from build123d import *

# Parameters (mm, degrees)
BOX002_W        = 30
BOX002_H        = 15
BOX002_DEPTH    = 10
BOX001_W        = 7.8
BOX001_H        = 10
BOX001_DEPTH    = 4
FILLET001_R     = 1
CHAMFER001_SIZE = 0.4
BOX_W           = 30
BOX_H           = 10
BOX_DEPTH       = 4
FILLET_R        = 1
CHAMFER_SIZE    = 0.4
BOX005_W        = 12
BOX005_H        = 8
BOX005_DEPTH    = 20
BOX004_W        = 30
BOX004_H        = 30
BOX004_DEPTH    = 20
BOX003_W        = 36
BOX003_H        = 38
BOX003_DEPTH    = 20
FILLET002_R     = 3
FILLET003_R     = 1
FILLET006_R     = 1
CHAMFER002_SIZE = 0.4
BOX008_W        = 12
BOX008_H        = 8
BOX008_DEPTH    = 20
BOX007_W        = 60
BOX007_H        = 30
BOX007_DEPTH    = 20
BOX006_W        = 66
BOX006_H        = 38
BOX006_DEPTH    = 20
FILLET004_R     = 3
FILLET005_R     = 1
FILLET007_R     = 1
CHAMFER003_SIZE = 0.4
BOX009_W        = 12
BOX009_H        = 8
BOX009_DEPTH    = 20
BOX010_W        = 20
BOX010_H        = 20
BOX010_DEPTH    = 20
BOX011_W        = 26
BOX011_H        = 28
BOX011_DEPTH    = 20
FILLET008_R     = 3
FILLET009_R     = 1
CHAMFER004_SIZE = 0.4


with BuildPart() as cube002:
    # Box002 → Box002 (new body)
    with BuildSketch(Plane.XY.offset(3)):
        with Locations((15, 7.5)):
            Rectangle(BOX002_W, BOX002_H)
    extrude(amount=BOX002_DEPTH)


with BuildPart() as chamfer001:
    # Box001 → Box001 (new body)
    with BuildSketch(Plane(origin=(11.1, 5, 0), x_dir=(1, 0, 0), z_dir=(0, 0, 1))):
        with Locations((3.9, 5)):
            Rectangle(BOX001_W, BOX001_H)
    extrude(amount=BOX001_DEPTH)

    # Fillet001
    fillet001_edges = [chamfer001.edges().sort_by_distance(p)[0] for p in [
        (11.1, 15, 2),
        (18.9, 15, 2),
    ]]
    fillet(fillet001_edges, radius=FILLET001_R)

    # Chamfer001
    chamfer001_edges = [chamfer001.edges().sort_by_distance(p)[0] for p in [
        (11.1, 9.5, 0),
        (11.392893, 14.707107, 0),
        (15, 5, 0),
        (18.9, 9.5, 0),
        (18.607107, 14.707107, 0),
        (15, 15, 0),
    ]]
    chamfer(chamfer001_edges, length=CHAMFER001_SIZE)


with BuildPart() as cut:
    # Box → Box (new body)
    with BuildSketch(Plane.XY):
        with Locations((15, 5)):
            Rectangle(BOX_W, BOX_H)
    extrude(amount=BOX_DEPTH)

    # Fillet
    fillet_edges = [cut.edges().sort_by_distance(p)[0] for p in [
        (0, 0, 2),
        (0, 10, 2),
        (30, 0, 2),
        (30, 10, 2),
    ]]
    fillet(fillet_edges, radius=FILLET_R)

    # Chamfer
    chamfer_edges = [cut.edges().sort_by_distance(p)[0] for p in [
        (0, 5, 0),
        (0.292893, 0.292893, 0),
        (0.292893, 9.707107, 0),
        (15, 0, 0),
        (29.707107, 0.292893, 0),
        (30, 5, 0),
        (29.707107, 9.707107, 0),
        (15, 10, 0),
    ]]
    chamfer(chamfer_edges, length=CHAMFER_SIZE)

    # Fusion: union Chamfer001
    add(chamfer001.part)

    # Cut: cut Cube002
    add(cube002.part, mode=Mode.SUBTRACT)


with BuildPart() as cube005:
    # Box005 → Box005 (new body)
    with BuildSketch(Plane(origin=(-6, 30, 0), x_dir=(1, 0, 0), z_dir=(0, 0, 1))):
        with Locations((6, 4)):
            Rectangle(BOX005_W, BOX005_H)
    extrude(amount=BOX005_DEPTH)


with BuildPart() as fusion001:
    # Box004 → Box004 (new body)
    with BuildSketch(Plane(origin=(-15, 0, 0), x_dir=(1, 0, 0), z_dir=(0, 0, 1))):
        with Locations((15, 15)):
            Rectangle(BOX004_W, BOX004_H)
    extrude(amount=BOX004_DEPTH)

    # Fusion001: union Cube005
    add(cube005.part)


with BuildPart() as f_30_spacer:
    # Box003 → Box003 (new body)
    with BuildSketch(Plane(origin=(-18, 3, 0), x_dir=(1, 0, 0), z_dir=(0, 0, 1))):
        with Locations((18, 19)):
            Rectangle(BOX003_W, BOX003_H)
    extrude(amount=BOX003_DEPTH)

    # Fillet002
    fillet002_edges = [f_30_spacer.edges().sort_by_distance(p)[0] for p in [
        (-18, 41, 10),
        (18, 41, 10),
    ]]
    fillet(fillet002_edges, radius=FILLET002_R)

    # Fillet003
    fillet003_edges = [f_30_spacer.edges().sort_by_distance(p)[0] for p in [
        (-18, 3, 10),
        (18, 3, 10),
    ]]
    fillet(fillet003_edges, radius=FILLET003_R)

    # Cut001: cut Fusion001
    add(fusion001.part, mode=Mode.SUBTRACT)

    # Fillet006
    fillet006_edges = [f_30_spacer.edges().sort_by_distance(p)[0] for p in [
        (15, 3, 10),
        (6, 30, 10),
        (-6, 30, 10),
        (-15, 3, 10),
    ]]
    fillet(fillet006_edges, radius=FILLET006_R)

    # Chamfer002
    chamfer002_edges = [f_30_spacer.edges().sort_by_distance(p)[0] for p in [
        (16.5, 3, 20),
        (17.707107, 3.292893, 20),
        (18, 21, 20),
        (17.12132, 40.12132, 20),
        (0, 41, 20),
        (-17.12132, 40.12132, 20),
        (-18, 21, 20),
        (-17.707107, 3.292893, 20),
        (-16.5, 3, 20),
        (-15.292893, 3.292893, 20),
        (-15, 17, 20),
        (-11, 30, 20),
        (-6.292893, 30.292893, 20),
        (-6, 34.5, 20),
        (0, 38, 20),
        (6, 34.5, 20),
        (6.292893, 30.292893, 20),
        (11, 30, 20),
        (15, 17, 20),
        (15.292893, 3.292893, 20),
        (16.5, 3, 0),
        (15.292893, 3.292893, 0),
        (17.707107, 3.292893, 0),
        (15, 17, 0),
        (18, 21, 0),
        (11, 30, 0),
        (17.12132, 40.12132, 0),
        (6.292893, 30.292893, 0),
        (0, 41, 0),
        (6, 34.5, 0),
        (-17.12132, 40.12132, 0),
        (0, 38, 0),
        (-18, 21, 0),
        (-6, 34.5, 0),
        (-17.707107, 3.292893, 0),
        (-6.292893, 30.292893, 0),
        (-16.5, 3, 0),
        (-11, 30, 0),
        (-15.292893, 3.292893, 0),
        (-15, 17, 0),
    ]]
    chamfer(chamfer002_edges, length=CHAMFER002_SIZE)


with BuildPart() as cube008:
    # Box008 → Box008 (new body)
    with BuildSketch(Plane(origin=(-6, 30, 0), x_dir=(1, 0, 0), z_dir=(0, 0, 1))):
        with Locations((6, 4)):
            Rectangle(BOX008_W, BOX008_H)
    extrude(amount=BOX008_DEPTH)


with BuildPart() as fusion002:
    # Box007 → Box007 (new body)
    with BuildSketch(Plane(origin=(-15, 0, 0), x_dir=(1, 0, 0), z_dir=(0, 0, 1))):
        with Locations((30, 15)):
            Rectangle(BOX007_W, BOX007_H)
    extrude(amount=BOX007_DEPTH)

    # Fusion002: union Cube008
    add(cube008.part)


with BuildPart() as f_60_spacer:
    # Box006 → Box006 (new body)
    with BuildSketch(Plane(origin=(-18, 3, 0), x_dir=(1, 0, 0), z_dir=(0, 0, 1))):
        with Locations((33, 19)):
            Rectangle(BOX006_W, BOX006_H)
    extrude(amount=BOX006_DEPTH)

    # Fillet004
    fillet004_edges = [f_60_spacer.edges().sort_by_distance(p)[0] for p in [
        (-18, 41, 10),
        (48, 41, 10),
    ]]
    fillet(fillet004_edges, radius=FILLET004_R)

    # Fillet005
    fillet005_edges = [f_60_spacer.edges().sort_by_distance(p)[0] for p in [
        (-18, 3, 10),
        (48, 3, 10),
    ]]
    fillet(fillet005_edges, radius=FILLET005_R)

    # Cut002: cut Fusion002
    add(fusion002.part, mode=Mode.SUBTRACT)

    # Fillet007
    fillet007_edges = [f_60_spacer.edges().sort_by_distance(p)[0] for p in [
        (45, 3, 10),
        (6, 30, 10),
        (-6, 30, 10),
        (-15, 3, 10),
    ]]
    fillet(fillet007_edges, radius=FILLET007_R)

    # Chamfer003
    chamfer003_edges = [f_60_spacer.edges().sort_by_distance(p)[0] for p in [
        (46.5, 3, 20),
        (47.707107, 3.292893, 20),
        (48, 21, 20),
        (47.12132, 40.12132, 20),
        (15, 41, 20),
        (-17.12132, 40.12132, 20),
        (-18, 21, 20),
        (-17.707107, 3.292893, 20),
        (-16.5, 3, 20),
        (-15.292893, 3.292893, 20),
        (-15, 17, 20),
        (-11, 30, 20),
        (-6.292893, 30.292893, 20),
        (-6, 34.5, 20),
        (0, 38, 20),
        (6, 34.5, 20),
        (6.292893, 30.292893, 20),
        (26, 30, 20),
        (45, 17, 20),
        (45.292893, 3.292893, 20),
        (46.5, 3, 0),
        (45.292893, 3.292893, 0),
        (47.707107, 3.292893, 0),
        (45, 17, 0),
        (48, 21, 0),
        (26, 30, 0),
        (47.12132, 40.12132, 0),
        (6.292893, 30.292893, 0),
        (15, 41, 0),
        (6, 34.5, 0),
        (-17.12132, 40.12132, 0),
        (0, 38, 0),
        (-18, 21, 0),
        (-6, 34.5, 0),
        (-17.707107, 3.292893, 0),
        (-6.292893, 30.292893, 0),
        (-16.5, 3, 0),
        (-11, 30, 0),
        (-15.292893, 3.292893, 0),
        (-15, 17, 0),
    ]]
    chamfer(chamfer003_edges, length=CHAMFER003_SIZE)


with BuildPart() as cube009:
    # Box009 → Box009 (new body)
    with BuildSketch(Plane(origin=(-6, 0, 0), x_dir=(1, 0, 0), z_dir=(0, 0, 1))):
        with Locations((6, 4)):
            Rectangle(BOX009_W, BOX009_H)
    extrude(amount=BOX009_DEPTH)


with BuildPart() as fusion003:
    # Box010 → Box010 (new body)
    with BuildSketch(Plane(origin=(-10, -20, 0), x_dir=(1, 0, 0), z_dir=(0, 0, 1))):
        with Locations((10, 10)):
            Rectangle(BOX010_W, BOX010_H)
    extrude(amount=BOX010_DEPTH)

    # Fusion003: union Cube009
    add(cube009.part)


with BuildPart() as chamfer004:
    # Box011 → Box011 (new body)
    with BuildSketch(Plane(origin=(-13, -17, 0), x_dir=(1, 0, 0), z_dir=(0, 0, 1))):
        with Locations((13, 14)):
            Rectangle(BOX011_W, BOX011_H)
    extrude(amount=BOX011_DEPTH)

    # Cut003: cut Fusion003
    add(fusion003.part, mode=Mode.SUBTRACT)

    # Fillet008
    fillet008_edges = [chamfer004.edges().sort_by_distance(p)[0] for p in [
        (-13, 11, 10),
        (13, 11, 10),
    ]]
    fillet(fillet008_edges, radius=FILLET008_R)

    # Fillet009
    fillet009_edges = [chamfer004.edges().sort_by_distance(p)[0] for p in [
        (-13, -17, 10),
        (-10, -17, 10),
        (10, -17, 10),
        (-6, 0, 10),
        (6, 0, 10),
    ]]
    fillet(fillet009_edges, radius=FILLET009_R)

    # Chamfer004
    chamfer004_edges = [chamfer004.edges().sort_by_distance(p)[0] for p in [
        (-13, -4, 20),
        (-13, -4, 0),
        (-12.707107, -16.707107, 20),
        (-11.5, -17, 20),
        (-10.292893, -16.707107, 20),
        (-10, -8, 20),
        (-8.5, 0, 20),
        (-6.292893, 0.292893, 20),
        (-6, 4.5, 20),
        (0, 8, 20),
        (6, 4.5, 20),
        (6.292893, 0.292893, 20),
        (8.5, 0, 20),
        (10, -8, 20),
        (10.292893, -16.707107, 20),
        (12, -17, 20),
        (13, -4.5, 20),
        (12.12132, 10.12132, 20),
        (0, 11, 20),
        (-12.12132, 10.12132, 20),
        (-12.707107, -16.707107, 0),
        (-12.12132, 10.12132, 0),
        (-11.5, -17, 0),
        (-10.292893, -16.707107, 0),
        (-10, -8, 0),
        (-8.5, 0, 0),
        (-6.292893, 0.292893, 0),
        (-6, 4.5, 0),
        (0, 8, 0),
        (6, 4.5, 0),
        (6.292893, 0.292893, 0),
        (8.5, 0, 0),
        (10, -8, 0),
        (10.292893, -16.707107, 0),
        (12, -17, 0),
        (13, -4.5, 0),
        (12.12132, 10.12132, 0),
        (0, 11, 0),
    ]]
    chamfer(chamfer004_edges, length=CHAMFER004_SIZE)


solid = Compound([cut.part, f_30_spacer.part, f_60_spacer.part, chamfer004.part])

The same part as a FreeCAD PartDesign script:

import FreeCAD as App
import Part
import Sketcher


def edges_at(feature, points):
    """Names of the edges that pass closest to the given points."""
    edges = feature.Shape.Edges
    near = lambda p: min(range(len(edges)), key=lambda i: edges[i].distToShape(Part.Vertex(*p))[0])
    return sorted({f"Edge{near(p) + 1}" for p in points})

doc = App.newDocument("Part")
body = doc.addObject("PartDesign::Body", "Body")

sketch1 = body.newObject("Sketcher::SketchObject", "Sketch")
sketch1.AttachmentSupport = (doc.getObject("XY_Plane"), [""])
sketch1.MapMode = "FlatFace"
sketch1.AttachmentOffset = App.Placement(App.Vector(0, 0, 3), App.Rotation())
sketch1.addGeometry([
    Part.LineSegment(App.Vector(0, 15, 0), App.Vector(0, 0, 0)),
    Part.LineSegment(App.Vector(0, 0, 0), App.Vector(30, 0, 0)),
    Part.LineSegment(App.Vector(30, 0, 0), App.Vector(30, 15, 0)),
    Part.LineSegment(App.Vector(30, 15, 0), App.Vector(0, 15, 0)),
], False)
sketch1.addConstraint([
    Sketcher.Constraint("Coincident", 0, 2, 1, 1),
    Sketcher.Constraint("Coincident", 1, 2, 2, 1),
    Sketcher.Constraint("Coincident", 2, 2, 3, 1),
    Sketcher.Constraint("Coincident", 3, 2, 0, 1),
    Sketcher.Constraint("Vertical", 0),
    Sketcher.Constraint("Horizontal", 1),
    Sketcher.Constraint("Vertical", 2),
    Sketcher.Constraint("Horizontal", 3),
    Sketcher.Constraint("Coincident", 0, 2, -1, 1),
    Sketcher.Constraint("DistanceX", 1, 1, 1, 2, 30.0),
    Sketcher.Constraint("DistanceY", 0, 2, 0, 1, 15.0),
])
pad1 = body.newObject("PartDesign::Pad", "Pad")
pad1.Profile = sketch1
pad1.Length = 10
body2 = doc.addObject("PartDesign::Body", "Body001")

sketch2 = body2.newObject("Sketcher::SketchObject", "Sketch001")
sketch2.AttachmentSupport = (doc.getObject("XY_Plane001"), [""])
sketch2.MapMode = "FlatFace"
sketch2.addGeometry([
    Part.LineSegment(App.Vector(11, 15, 0), App.Vector(11, 5, 0)),
    Part.LineSegment(App.Vector(11, 5, 0), App.Vector(19, 5, 0)),
    Part.LineSegment(App.Vector(19, 5, 0), App.Vector(19, 15, 0)),
    Part.LineSegment(App.Vector(19, 15, 0), App.Vector(11, 15, 0)),
], False)
sketch2.addConstraint([
    Sketcher.Constraint("Coincident", 0, 2, 1, 1),
    Sketcher.Constraint("Coincident", 1, 2, 2, 1),
    Sketcher.Constraint("Coincident", 2, 2, 3, 1),
    Sketcher.Constraint("Coincident", 3, 2, 0, 1),
    Sketcher.Constraint("Vertical", 0),
    Sketcher.Constraint("Horizontal", 1),
    Sketcher.Constraint("Vertical", 2),
    Sketcher.Constraint("Horizontal", 3),
    Sketcher.Constraint("DistanceY", 0, 2, 0, 1, 10.0),
    Sketcher.Constraint("DistanceX", 1, 1, 1, 2, 7.8),
    Sketcher.Constraint("DistanceY", -1, 1, 0, 2, 5.0),
    Sketcher.Constraint("DistanceX", -1, 1, 0, 2, 11.1),
])
pad2 = body2.newObject("PartDesign::Pad", "Pad001")
pad2.Profile = sketch2
pad2.Length = 4
doc.recompute()

fillet = body2.newObject("PartDesign::Fillet", "Fillet")
fillet.Base = (pad2, edges_at(pad2, [(11.1, 15, 2), (18.9, 15, 2)]))
fillet.Radius = 1
doc.recompute()

chamfer = body2.newObject("PartDesign::Chamfer", "Chamfer")
chamfer.Base = (fillet, edges_at(fillet, [
    (11.1, 9.5, 0),
    (11.393, 14.707, 0),
    (15, 5, 0),
    (18.9, 9.5, 0),
    (18.607, 14.707, 0),
    (15, 15, 0),
]))
chamfer.Size = 0.4
body3 = doc.addObject("PartDesign::Body", "Body002")

sketch3 = body3.newObject("Sketcher::SketchObject", "Sketch002")
sketch3.AttachmentSupport = (doc.getObject("XY_Plane002"), [""])
sketch3.MapMode = "FlatFace"
sketch3.addGeometry([
    Part.LineSegment(App.Vector(0, 10, 0), App.Vector(0, 0, 0)),
    Part.LineSegment(App.Vector(0, 0, 0), App.Vector(30, 0, 0)),
    Part.LineSegment(App.Vector(30, 0, 0), App.Vector(30, 10, 0)),
    Part.LineSegment(App.Vector(30, 10, 0), App.Vector(0, 10, 0)),
], False)
sketch3.addConstraint([
    Sketcher.Constraint("Coincident", 0, 2, 1, 1),
    Sketcher.Constraint("Coincident", 1, 2, 2, 1),
    Sketcher.Constraint("Coincident", 2, 2, 3, 1),
    Sketcher.Constraint("Coincident", 3, 2, 0, 1),
    Sketcher.Constraint("Vertical", 0),
    Sketcher.Constraint("Horizontal", 1),
    Sketcher.Constraint("Vertical", 2),
    Sketcher.Constraint("Horizontal", 3),
    Sketcher.Constraint("Coincident", 0, 2, -1, 1),
    Sketcher.Constraint("DistanceX", 1, 1, 1, 2, 30.0),
    Sketcher.Constraint("DistanceY", 0, 2, 0, 1, 10.0),
])
pad3 = body3.newObject("PartDesign::Pad", "Pad002")
pad3.Profile = sketch3
pad3.Length = 4
doc.recompute()

fillet2 = body3.newObject("PartDesign::Fillet", "Fillet001")
fillet2.Base = (pad3, edges_at(pad3, [
    (0, 0, 2),
    (0, 10, 2),
    (30, 0, 2),
    (30, 10, 2),
]))
fillet2.Radius = 1
doc.recompute()

chamfer2 = body3.newObject("PartDesign::Chamfer", "Chamfer001")
chamfer2.Base = (fillet2, edges_at(fillet2, [
    (0, 5, 0),
    (0.293, 0.293, 0),
    (0.293, 9.707, 0),
    (15, 0, 0),
    (29.707, 0.293, 0),
    (30, 5, 0),
    (29.707, 9.707, 0),
    (15, 10, 0),
]))
chamfer2.Size = 0.4
doc.recompute()

boolean = body3.newObject("PartDesign::Boolean", "Boolean")
boolean.Type = "Fuse"
boolean.addObjects([body2])
doc.recompute()

boolean2 = body3.newObject("PartDesign::Boolean", "Boolean001")
boolean2.Type = "Cut"
boolean2.addObjects([body])
body4 = doc.addObject("PartDesign::Body", "Body003")

sketch4 = body4.newObject("Sketcher::SketchObject", "Sketch003")
sketch4.AttachmentSupport = (doc.getObject("XY_Plane003"), [""])
sketch4.MapMode = "FlatFace"
sketch4.addGeometry([
    Part.LineSegment(App.Vector(-6, 38, 0), App.Vector(-6, 30, 0)),
    Part.LineSegment(App.Vector(-6, 30, 0), App.Vector(6, 30, 0)),
    Part.LineSegment(App.Vector(6, 30, 0), App.Vector(6, 38, 0)),
    Part.LineSegment(App.Vector(6, 38, 0), App.Vector(-6, 38, 0)),
], False)
sketch4.addConstraint([
    Sketcher.Constraint("Coincident", 0, 2, 1, 1),
    Sketcher.Constraint("Coincident", 1, 2, 2, 1),
    Sketcher.Constraint("Coincident", 2, 2, 3, 1),
    Sketcher.Constraint("Coincident", 3, 2, 0, 1),
    Sketcher.Constraint("Vertical", 0),
    Sketcher.Constraint("Horizontal", 1),
    Sketcher.Constraint("Vertical", 2),
    Sketcher.Constraint("Horizontal", 3),
    Sketcher.Constraint("DistanceX", 1, 1, 1, 2, 12.0),
    Sketcher.Constraint("DistanceY", 0, 2, 0, 1, 8.0),
    Sketcher.Constraint("DistanceX", 0, 2, -1, 1, 6.0),
    Sketcher.Constraint("DistanceY", -1, 1, 0, 2, 30.0),
])
pad4 = body4.newObject("PartDesign::Pad", "Pad003")
pad4.Profile = sketch4
pad4.Length = 20
body5 = doc.addObject("PartDesign::Body", "Body004")

sketch5 = body5.newObject("Sketcher::SketchObject", "Sketch004")
sketch5.AttachmentSupport = (doc.getObject("XY_Plane004"), [""])
sketch5.MapMode = "FlatFace"
sketch5.addGeometry([
    Part.LineSegment(App.Vector(-15, 30, 0), App.Vector(-15, 0, 0)),
    Part.LineSegment(App.Vector(-15, 0, 0), App.Vector(15, 0, 0)),
    Part.LineSegment(App.Vector(15, 0, 0), App.Vector(15, 30, 0)),
    Part.LineSegment(App.Vector(15, 30, 0), App.Vector(-15, 30, 0)),
], False)
sketch5.addConstraint([
    Sketcher.Constraint("Coincident", 0, 2, 1, 1),
    Sketcher.Constraint("Coincident", 1, 2, 2, 1),
    Sketcher.Constraint("Coincident", 2, 2, 3, 1),
    Sketcher.Constraint("Coincident", 3, 2, 0, 1),
    Sketcher.Constraint("Vertical", 0),
    Sketcher.Constraint("Horizontal", 1),
    Sketcher.Constraint("Vertical", 2),
    Sketcher.Constraint("Horizontal", 3),
    Sketcher.Constraint("Symmetric", 0, 2, 1, 2, -1, 1),
    Sketcher.Constraint("Equal", 3, 0),
    Sketcher.Constraint("DistanceX", 1, 1, 1, 2, 30.0),
])
pad5 = body5.newObject("PartDesign::Pad", "Pad004")
pad5.Profile = sketch5
pad5.Length = 20
doc.recompute()

boolean3 = body5.newObject("PartDesign::Boolean", "Boolean002")
boolean3.Type = "Fuse"
boolean3.addObjects([body4])
body6 = doc.addObject("PartDesign::Body", "Body005")

sketch6 = body6.newObject("Sketcher::SketchObject", "Sketch005")
sketch6.AttachmentSupport = (doc.getObject("XY_Plane005"), [""])
sketch6.MapMode = "FlatFace"
sketch6.addGeometry([
    Part.LineSegment(App.Vector(-18, 41, 0), App.Vector(-18, 3, 0)),
    Part.LineSegment(App.Vector(-18, 3, 0), App.Vector(18, 3, 0)),
    Part.LineSegment(App.Vector(18, 3, 0), App.Vector(18, 41, 0)),
    Part.LineSegment(App.Vector(18, 41, 0), App.Vector(-18, 41, 0)),
], False)
sketch6.addConstraint([
    Sketcher.Constraint("Coincident", 0, 2, 1, 1),
    Sketcher.Constraint("Coincident", 1, 2, 2, 1),
    Sketcher.Constraint("Coincident", 2, 2, 3, 1),
    Sketcher.Constraint("Coincident", 3, 2, 0, 1),
    Sketcher.Constraint("Vertical", 0),
    Sketcher.Constraint("Horizontal", 1),
    Sketcher.Constraint("Vertical", 2),
    Sketcher.Constraint("Horizontal", 3),
    Sketcher.Constraint("DistanceX", 1, 1, 1, 2, 36.0),
    Sketcher.Constraint("DistanceY", 0, 2, 0, 1, 38.0),
    Sketcher.Constraint("DistanceX", 0, 2, -1, 1, 18.0),
    Sketcher.Constraint("DistanceY", -1, 1, 0, 2, 3.0),
])
pad6 = body6.newObject("PartDesign::Pad", "Pad005")
pad6.Profile = sketch6
pad6.Length = 20
doc.recompute()

fillet3 = body6.newObject("PartDesign::Fillet", "Fillet002")
fillet3.Base = (pad6, edges_at(pad6, [(-18, 41, 10), (18, 41, 10)]))
fillet3.Radius = 3
doc.recompute()

fillet4 = body6.newObject("PartDesign::Fillet", "Fillet003")
fillet4.Base = (fillet3, edges_at(fillet3, [(-18, 3, 10), (18, 3, 10)]))
fillet4.Radius = 1
doc.recompute()

boolean4 = body6.newObject("PartDesign::Boolean", "Boolean003")
boolean4.Type = "Cut"
boolean4.addObjects([body5])
doc.recompute()

fillet5 = body6.newObject("PartDesign::Fillet", "Fillet004")
fillet5.Base = (boolean4, edges_at(boolean4, [
    (15, 3, 10),
    (6, 30, 10),
    (-6, 30, 10),
    (-15, 3, 10),
]))
fillet5.Radius = 1
doc.recompute()

chamfer3 = body6.newObject("PartDesign::Chamfer", "Chamfer002")
chamfer3.Base = (fillet5, edges_at(fillet5, [
    (16.5, 3, 20),
    (17.707, 3.293, 20),
    (18, 21, 20),
    (17.121, 40.121, 20),
    (0, 41, 20),
    (-17.121, 40.121, 20),
    (-18, 21, 20),
    (-17.707, 3.293, 20),
    (-16.5, 3, 20),
    (-15.293, 3.293, 20),
    (-15, 17, 20),
    (-11, 30, 20),
    (-6.293, 30.293, 20),
    (-6, 34.5, 20),
    (0, 38, 20),
    (6, 34.5, 20),
    (6.293, 30.293, 20),
    (11, 30, 20),
    (15, 17, 20),
    (15.293, 3.293, 20),
    (16.5, 3, 0),
    (15.293, 3.293, 0),
    (17.707, 3.293, 0),
    (15, 17, 0),
    (18, 21, 0),
    (11, 30, 0),
    (17.121, 40.121, 0),
    (6.293, 30.293, 0),
    (0, 41, 0),
    (6, 34.5, 0),
    (-17.121, 40.121, 0),
    (0, 38, 0),
    (-18, 21, 0),
    (-6, 34.5, 0),
    (-17.707, 3.293, 0),
    (-6.293, 30.293, 0),
    (-16.5, 3, 0),
    (-11, 30, 0),
    (-15.293, 3.293, 0),
    (-15, 17, 0),
]))
chamfer3.Size = 0.4
body7 = doc.addObject("PartDesign::Body", "Body006")

sketch7 = body7.newObject("Sketcher::SketchObject", "Sketch006")
sketch7.AttachmentSupport = (doc.getObject("XY_Plane006"), [""])
sketch7.MapMode = "FlatFace"
sketch7.addGeometry([
    Part.LineSegment(App.Vector(-6, 38, 0), App.Vector(-6, 30, 0)),
    Part.LineSegment(App.Vector(-6, 30, 0), App.Vector(6, 30, 0)),
    Part.LineSegment(App.Vector(6, 30, 0), App.Vector(6, 38, 0)),
    Part.LineSegment(App.Vector(6, 38, 0), App.Vector(-6, 38, 0)),
], False)
sketch7.addConstraint([
    Sketcher.Constraint("Coincident", 0, 2, 1, 1),
    Sketcher.Constraint("Coincident", 1, 2, 2, 1),
    Sketcher.Constraint("Coincident", 2, 2, 3, 1),
    Sketcher.Constraint("Coincident", 3, 2, 0, 1),
    Sketcher.Constraint("Vertical", 0),
    Sketcher.Constraint("Horizontal", 1),
    Sketcher.Constraint("Vertical", 2),
    Sketcher.Constraint("Horizontal", 3),
    Sketcher.Constraint("DistanceX", 1, 1, 1, 2, 12.0),
    Sketcher.Constraint("DistanceY", 0, 2, 0, 1, 8.0),
    Sketcher.Constraint("DistanceX", 0, 2, -1, 1, 6.0),
    Sketcher.Constraint("DistanceY", -1, 1, 0, 2, 30.0),
])
pad7 = body7.newObject("PartDesign::Pad", "Pad006")
pad7.Profile = sketch7
pad7.Length = 20
body8 = doc.addObject("PartDesign::Body", "Body007")

sketch8 = body8.newObject("Sketcher::SketchObject", "Sketch007")
sketch8.AttachmentSupport = (doc.getObject("XY_Plane007"), [""])
sketch8.MapMode = "FlatFace"
sketch8.addGeometry([
    Part.LineSegment(App.Vector(-15, 30, 0), App.Vector(-15, 0, 0)),
    Part.LineSegment(App.Vector(-15, 0, 0), App.Vector(45, 0, 0)),
    Part.LineSegment(App.Vector(45, 0, 0), App.Vector(45, 30, 0)),
    Part.LineSegment(App.Vector(45, 30, 0), App.Vector(-15, 30, 0)),
], False)
sketch8.addConstraint([
    Sketcher.Constraint("Coincident", 0, 2, 1, 1),
    Sketcher.Constraint("Coincident", 1, 2, 2, 1),
    Sketcher.Constraint("Coincident", 2, 2, 3, 1),
    Sketcher.Constraint("Coincident", 3, 2, 0, 1),
    Sketcher.Constraint("Vertical", 0),
    Sketcher.Constraint("Horizontal", 1),
    Sketcher.Constraint("Vertical", 2),
    Sketcher.Constraint("Horizontal", 3),
    Sketcher.Constraint("PointOnObject", 0, 2, -1),
    Sketcher.Constraint("DistanceX", 1, 1, 1, 2, 60.0),
    Sketcher.Constraint("DistanceY", 0, 2, 0, 1, 30.0),
    Sketcher.Constraint("DistanceX", 0, 2, -1, 1, 15.0),
])
pad8 = body8.newObject("PartDesign::Pad", "Pad007")
pad8.Profile = sketch8
pad8.Length = 20
doc.recompute()

boolean5 = body8.newObject("PartDesign::Boolean", "Boolean004")
boolean5.Type = "Fuse"
boolean5.addObjects([body7])
body9 = doc.addObject("PartDesign::Body", "Body008")

sketch9 = body9.newObject("Sketcher::SketchObject", "Sketch008")
sketch9.AttachmentSupport = (doc.getObject("XY_Plane008"), [""])
sketch9.MapMode = "FlatFace"
sketch9.addGeometry([
    Part.LineSegment(App.Vector(-18, 41, 0), App.Vector(-18, 3, 0)),
    Part.LineSegment(App.Vector(-18, 3, 0), App.Vector(48, 3, 0)),
    Part.LineSegment(App.Vector(48, 3, 0), App.Vector(48, 41, 0)),
    Part.LineSegment(App.Vector(48, 41, 0), App.Vector(-18, 41, 0)),
], False)
sketch9.addConstraint([
    Sketcher.Constraint("Coincident", 0, 2, 1, 1),
    Sketcher.Constraint("Coincident", 1, 2, 2, 1),
    Sketcher.Constraint("Coincident", 2, 2, 3, 1),
    Sketcher.Constraint("Coincident", 3, 2, 0, 1),
    Sketcher.Constraint("Vertical", 0),
    Sketcher.Constraint("Horizontal", 1),
    Sketcher.Constraint("Vertical", 2),
    Sketcher.Constraint("Horizontal", 3),
    Sketcher.Constraint("DistanceX", 1, 1, 1, 2, 66.0),
    Sketcher.Constraint("DistanceY", 0, 2, 0, 1, 38.0),
    Sketcher.Constraint("DistanceX", 0, 2, -1, 1, 18.0),
    Sketcher.Constraint("DistanceY", -1, 1, 0, 2, 3.0),
])
pad9 = body9.newObject("PartDesign::Pad", "Pad008")
pad9.Profile = sketch9
pad9.Length = 20
doc.recompute()

fillet6 = body9.newObject("PartDesign::Fillet", "Fillet005")
fillet6.Base = (pad9, edges_at(pad9, [(-18, 41, 10), (48, 41, 10)]))
fillet6.Radius = 3
doc.recompute()

fillet7 = body9.newObject("PartDesign::Fillet", "Fillet006")
fillet7.Base = (fillet6, edges_at(fillet6, [(-18, 3, 10), (48, 3, 10)]))
fillet7.Radius = 1
doc.recompute()

boolean6 = body9.newObject("PartDesign::Boolean", "Boolean005")
boolean6.Type = "Cut"
boolean6.addObjects([body8])
doc.recompute()

fillet8 = body9.newObject("PartDesign::Fillet", "Fillet007")
fillet8.Base = (boolean6, edges_at(boolean6, [
    (45, 3, 10),
    (6, 30, 10),
    (-6, 30, 10),
    (-15, 3, 10),
]))
fillet8.Radius = 1
doc.recompute()

chamfer4 = body9.newObject("PartDesign::Chamfer", "Chamfer003")
chamfer4.Base = (fillet8, edges_at(fillet8, [
    (46.5, 3, 20),
    (47.707, 3.293, 20),
    (48, 21, 20),
    (47.121, 40.121, 20),
    (15, 41, 20),
    (-17.121, 40.121, 20),
    (-18, 21, 20),
    (-17.707, 3.293, 20),
    (-16.5, 3, 20),
    (-15.293, 3.293, 20),
    (-15, 17, 20),
    (-11, 30, 20),
    (-6.293, 30.293, 20),
    (-6, 34.5, 20),
    (0, 38, 20),
    (6, 34.5, 20),
    (6.293, 30.293, 20),
    (26, 30, 20),
    (45, 17, 20),
    (45.293, 3.293, 20),
    (46.5, 3, 0),
    (45.293, 3.293, 0),
    (47.707, 3.293, 0),
    (45, 17, 0),
    (48, 21, 0),
    (26, 30, 0),
    (47.121, 40.121, 0),
    (6.293, 30.293, 0),
    (15, 41, 0),
    (6, 34.5, 0),
    (-17.121, 40.121, 0),
    (0, 38, 0),
    (-18, 21, 0),
    (-6, 34.5, 0),
    (-17.707, 3.293, 0),
    (-6.293, 30.293, 0),
    (-16.5, 3, 0),
    (-11, 30, 0),
    (-15.293, 3.293, 0),
    (-15, 17, 0),
]))
chamfer4.Size = 0.4
body10 = doc.addObject("PartDesign::Body", "Body009")

sketch10 = body10.newObject("Sketcher::SketchObject", "Sketch009")
sketch10.AttachmentSupport = (doc.getObject("XY_Plane009"), [""])
sketch10.MapMode = "FlatFace"
sketch10.addGeometry([
    Part.LineSegment(App.Vector(-6, 8, 0), App.Vector(-6, 0, 0)),
    Part.LineSegment(App.Vector(-6, 0, 0), App.Vector(6, 0, 0)),
    Part.LineSegment(App.Vector(6, 0, 0), App.Vector(6, 8, 0)),
    Part.LineSegment(App.Vector(6, 8, 0), App.Vector(-6, 8, 0)),
], False)
sketch10.addConstraint([
    Sketcher.Constraint("Coincident", 0, 2, 1, 1),
    Sketcher.Constraint("Coincident", 1, 2, 2, 1),
    Sketcher.Constraint("Coincident", 2, 2, 3, 1),
    Sketcher.Constraint("Coincident", 3, 2, 0, 1),
    Sketcher.Constraint("Vertical", 0),
    Sketcher.Constraint("Horizontal", 1),
    Sketcher.Constraint("Vertical", 2),
    Sketcher.Constraint("Horizontal", 3),
    Sketcher.Constraint("Symmetric", 0, 2, 1, 2, -1, 1),
    Sketcher.Constraint("DistanceX", 1, 1, 1, 2, 12.0),
    Sketcher.Constraint("DistanceY", 0, 2, 0, 1, 8.0),
])
pad10 = body10.newObject("PartDesign::Pad", "Pad009")
pad10.Profile = sketch10
pad10.Length = 20
body11 = doc.addObject("PartDesign::Body", "Body010")

sketch11 = body11.newObject("Sketcher::SketchObject", "Sketch010")
sketch11.AttachmentSupport = (doc.getObject("XY_Plane010"), [""])
sketch11.MapMode = "FlatFace"
sketch11.addGeometry([
    Part.LineSegment(App.Vector(-10, 0, 0), App.Vector(-10, -20, 0)),
    Part.LineSegment(App.Vector(-10, -20, 0), App.Vector(10, -20, 0)),
    Part.LineSegment(App.Vector(10, -20, 0), App.Vector(10, 0, 0)),
    Part.LineSegment(App.Vector(10, 0, 0), App.Vector(-10, 0, 0)),
], False)
sketch11.addConstraint([
    Sketcher.Constraint("Coincident", 0, 2, 1, 1),
    Sketcher.Constraint("Coincident", 1, 2, 2, 1),
    Sketcher.Constraint("Coincident", 2, 2, 3, 1),
    Sketcher.Constraint("Coincident", 3, 2, 0, 1),
    Sketcher.Constraint("Vertical", 0),
    Sketcher.Constraint("Horizontal", 1),
    Sketcher.Constraint("Vertical", 2),
    Sketcher.Constraint("Horizontal", 3),
    Sketcher.Constraint("Symmetric", 2, 2, 3, 2, -1, 1),
    Sketcher.Constraint("Equal", 3, 0),
    Sketcher.Constraint("DistanceX", 1, 1, 1, 2, 20.0),
])
pad11 = body11.newObject("PartDesign::Pad", "Pad010")
pad11.Profile = sketch11
pad11.Length = 20
doc.recompute()

boolean7 = body11.newObject("PartDesign::Boolean", "Boolean006")
boolean7.Type = "Fuse"
boolean7.addObjects([body10])
body12 = doc.addObject("PartDesign::Body", "Body011")

sketch12 = body12.newObject("Sketcher::SketchObject", "Sketch011")
sketch12.AttachmentSupport = (doc.getObject("XY_Plane011"), [""])
sketch12.MapMode = "FlatFace"
sketch12.addGeometry([
    Part.LineSegment(App.Vector(-13, 11, 0), App.Vector(-13, -17, 0)),
    Part.LineSegment(App.Vector(-13, -17, 0), App.Vector(13, -17, 0)),
    Part.LineSegment(App.Vector(13, -17, 0), App.Vector(13, 11, 0)),
    Part.LineSegment(App.Vector(13, 11, 0), App.Vector(-13, 11, 0)),
], False)
sketch12.addConstraint([
    Sketcher.Constraint("Coincident", 0, 2, 1, 1),
    Sketcher.Constraint("Coincident", 1, 2, 2, 1),
    Sketcher.Constraint("Coincident", 2, 2, 3, 1),
    Sketcher.Constraint("Coincident", 3, 2, 0, 1),
    Sketcher.Constraint("Vertical", 0),
    Sketcher.Constraint("Horizontal", 1),
    Sketcher.Constraint("Vertical", 2),
    Sketcher.Constraint("Horizontal", 3),
    Sketcher.Constraint("DistanceX", 1, 1, 1, 2, 26.0),
    Sketcher.Constraint("DistanceY", 0, 2, 0, 1, 28.0),
    Sketcher.Constraint("DistanceX", 0, 2, -1, 1, 13.0),
    Sketcher.Constraint("DistanceY", 0, 2, -1, 1, 17.0),
])
pad12 = body12.newObject("PartDesign::Pad", "Pad011")
pad12.Profile = sketch12
pad12.Length = 20
doc.recompute()

boolean8 = body12.newObject("PartDesign::Boolean", "Boolean007")
boolean8.Type = "Cut"
boolean8.addObjects([body11])
doc.recompute()

fillet9 = body12.newObject("PartDesign::Fillet", "Fillet008")
fillet9.Base = (boolean8, edges_at(boolean8, [(-13, 11, 10), (13, 11, 10)]))
fillet9.Radius = 3
doc.recompute()

fillet10 = body12.newObject("PartDesign::Fillet", "Fillet009")
fillet10.Base = (fillet9, edges_at(fillet9, [
    (-13, -17, 10),
    (-10, -17, 10),
    (10, -17, 10),
    (-6, 0, 10),
    (6, 0, 10),
]))
fillet10.Radius = 1
doc.recompute()

chamfer5 = body12.newObject("PartDesign::Chamfer", "Chamfer004")
chamfer5.Base = (fillet10, edges_at(fillet10, [
    (-13, -4, 20),
    (-13, -4, 0),
    (-12.707, -16.707, 20),
    (-11.5, -17, 20),
    (-10.293, -16.707, 20),
    (-10, -8, 20),
    (-8.5, 0, 20),
    (-6.293, 0.293, 20),
    (-6, 4.5, 20),
    (0, 8, 20),
    (6, 4.5, 20),
    (6.293, 0.293, 20),
    (8.5, 0, 20),
    (10, -8, 20),
    (10.293, -16.707, 20),
    (12, -17, 20),
    (13, -4.5, 20),
    (12.121, 10.121, 20),
    (0, 11, 20),
    (-12.121, 10.121, 20),
    (-12.707, -16.707, 0),
    (-12.121, 10.121, 0),
    (-11.5, -17, 0),
    (-10.293, -16.707, 0),
    (-10, -8, 0),
    (-8.5, 0, 0),
    (-6.293, 0.293, 0),
    (-6, 4.5, 0),
    (0, 8, 0),
    (6, 4.5, 0),
    (6.293, 0.293, 0),
    (8.5, 0, 0),
    (10, -8, 0),
    (10.293, -16.707, 0),
    (12, -17, 0),
    (13, -4.5, 0),
    (12.121, 10.121, 0),
    (0, 11, 0),
]))
chamfer5.Size = 0.4

doc.recompute()
